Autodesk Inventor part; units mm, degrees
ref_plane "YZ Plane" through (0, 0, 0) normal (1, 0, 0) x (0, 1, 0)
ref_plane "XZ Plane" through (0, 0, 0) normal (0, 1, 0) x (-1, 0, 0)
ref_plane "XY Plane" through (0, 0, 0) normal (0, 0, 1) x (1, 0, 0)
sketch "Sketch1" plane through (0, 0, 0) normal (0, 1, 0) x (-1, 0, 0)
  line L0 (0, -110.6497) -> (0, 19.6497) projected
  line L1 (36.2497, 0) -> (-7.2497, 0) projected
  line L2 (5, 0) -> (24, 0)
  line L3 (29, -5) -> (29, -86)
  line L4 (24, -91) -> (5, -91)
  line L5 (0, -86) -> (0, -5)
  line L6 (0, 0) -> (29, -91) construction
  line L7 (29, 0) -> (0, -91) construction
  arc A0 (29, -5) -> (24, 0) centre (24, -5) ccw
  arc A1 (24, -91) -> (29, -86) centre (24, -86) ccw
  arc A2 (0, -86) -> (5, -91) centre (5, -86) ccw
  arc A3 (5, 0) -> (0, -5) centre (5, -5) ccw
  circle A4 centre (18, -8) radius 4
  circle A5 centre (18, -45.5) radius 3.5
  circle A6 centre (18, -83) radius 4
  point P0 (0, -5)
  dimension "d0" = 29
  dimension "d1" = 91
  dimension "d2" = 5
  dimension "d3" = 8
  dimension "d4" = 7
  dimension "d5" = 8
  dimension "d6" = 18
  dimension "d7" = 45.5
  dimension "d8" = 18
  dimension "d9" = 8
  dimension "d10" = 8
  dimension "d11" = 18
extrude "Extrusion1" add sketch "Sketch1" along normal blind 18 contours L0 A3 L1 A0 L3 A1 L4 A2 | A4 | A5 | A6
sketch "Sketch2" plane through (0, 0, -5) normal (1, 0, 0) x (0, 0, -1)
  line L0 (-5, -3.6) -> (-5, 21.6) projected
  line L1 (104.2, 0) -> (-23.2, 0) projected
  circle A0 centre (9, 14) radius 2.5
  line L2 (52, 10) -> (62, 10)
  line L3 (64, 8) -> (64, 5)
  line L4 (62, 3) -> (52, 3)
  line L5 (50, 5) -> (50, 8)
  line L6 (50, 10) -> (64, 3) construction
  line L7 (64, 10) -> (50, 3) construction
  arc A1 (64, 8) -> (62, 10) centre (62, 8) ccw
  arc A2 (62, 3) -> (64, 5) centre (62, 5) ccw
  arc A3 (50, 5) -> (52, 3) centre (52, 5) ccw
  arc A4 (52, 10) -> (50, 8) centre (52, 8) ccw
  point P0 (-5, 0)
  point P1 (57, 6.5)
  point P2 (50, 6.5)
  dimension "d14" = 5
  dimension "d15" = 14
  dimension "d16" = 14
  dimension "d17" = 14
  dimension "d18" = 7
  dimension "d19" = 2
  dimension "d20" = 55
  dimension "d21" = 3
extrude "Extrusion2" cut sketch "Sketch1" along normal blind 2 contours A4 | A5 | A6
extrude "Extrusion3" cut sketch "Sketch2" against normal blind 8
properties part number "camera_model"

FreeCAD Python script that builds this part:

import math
import FreeCAD as App
import Part
import Sketcher

V = App.Vector
Q = App.Units.Quantity

doc = App.newDocument("Part")
body = doc.addObject("PartDesign::Body", "Body")

sketch1 = doc.addObject("Sketcher::SketchObject", "Sketch")
body.addObject(sketch1)
sketch1.AttachmentSupport = (doc.XZ_Plane, [""])
sketch1.MapMode = "FlatFace"
sketch1.addGeometry(Part.LineSegment(V(0, -5, 0), V(0, -86, 0)), False)
sketch1.addGeometry(Part.ArcOfCircle(Part.Circle(V(-5, -86, 0), V(0, 0, 1), 5), math.radians(-90), math.radians(0)), False)
sketch1.addGeometry(Part.LineSegment(V(-5, -91, 0), V(-24, -91, 0)), False)
sketch1.addGeometry(Part.ArcOfCircle(Part.Circle(V(-24, -86, 0), V(0, 0, 1), 5), math.radians(180), math.radians(270)), False)
sketch1.addGeometry(Part.LineSegment(V(-29, -86, 0), V(-29, -5, 0)), False)
sketch1.addGeometry(Part.ArcOfCircle(Part.Circle(V(-24, -5, 0), V(0, 0, 1), 5), math.radians(90), math.radians(180)), False)
sketch1.addGeometry(Part.LineSegment(V(-24, 0, 0), V(-5, 0, 0)), False)
sketch1.addGeometry(Part.ArcOfCircle(Part.Circle(V(-5, -5, 0), V(0, 0, 1), 5), math.radians(0), math.radians(90)), False)
sketch1.addConstraint(Sketcher.Constraint("Tangent", 0, 2, 1, 2))
sketch1.addConstraint(Sketcher.Constraint("Tangent", 1, 1, 2, 1))
sketch1.addConstraint(Sketcher.Constraint("Tangent", 2, 2, 3, 2))
sketch1.addConstraint(Sketcher.Constraint("Tangent", 3, 1, 4, 1))
sketch1.addConstraint(Sketcher.Constraint("Tangent", 4, 2, 5, 2))
sketch1.addConstraint(Sketcher.Constraint("Tangent", 5, 1, 6, 1))
sketch1.addConstraint(Sketcher.Constraint("Tangent", 6, 2, 7, 2))
sketch1.addConstraint(Sketcher.Constraint("Tangent", 7, 1, 0, 1))
sketch1.addConstraint(Sketcher.Constraint("Vertical", 0))
sketch1.addConstraint(Sketcher.Constraint("Horizontal", 2))
sketch1.addConstraint(Sketcher.Constraint("Vertical", 4))
sketch1.addConstraint(Sketcher.Constraint("Horizontal", 6))
sketch1.addConstraint(Sketcher.Constraint("Equal", 1, 3))
sketch1.addConstraint(Sketcher.Constraint("Equal", 3, 5))
sketch1.addConstraint(Sketcher.Constraint("Equal", 5, 7))
sketch1.addConstraint(Sketcher.Constraint("PointOnObject", 0, 2, -2))
sketch1.addConstraint(Sketcher.Constraint("PointOnObject", 5, 1, -1))
sketch1.addConstraint(Sketcher.Constraint("Radius", 1, Q("5 mm")))
sketch1.addConstraint(Sketcher.Constraint("DistanceY", 1, 1, -1, 1, Q("91 mm")))
sketch1.addConstraint(Sketcher.Constraint("DistanceX", 3, 1, -1, 1, Q("29 mm")))
pad1 = doc.addObject("PartDesign::Pad", "Pad")
body.addObject(pad1)
pad1.Profile = sketch1
pad1.Length = 18
pad1.Reversed = True

sketch2 = doc.addObject("Sketcher::SketchObject", "Sketch001")
body.addObject(sketch2)
sketch2.AttachmentSupport = (doc.XZ_Plane, [""])
sketch2.MapMode = "FlatFace"
sketch2.addGeometry(Part.Circle(V(-18, -8, 0), V(0, 0, 1), 4), False)
sketch2.addGeometry(Part.Circle(V(-18, -45.5, 0), V(0, 0, 1), 3.5), False)
sketch2.addGeometry(Part.Circle(V(-18, -83, 0), V(0, 0, 1), 4), False)
sketch2.addConstraint(Sketcher.Constraint("Equal", 0, 2))
sketch2.addConstraint(Sketcher.Constraint("Vertical", 0, 3, 1, 3))
sketch2.addConstraint(Sketcher.Constraint("Vertical", 1, 3, 2, 3))
sketch2.addConstraint(Sketcher.Constraint("Diameter", 0, Q("8 mm")))
sketch2.addConstraint(Sketcher.Constraint("Diameter", 1, Q("7 mm")))
sketch2.addConstraint(Sketcher.Constraint("DistanceX", 0, 3, -1, 1, Q("18 mm")))
sketch2.addConstraint(Sketcher.Constraint("DistanceY", 0, 3, -1, 1, Q("8 mm")))
sketch2.addConstraint(Sketcher.Constraint("DistanceY", 1, 3, -1, 1, Q("45.5 mm")))
sketch2.addConstraint(Sketcher.Constraint("DistanceY", 2, 3, -1, 1, Q("83 mm")))
pocket1 = doc.addObject("PartDesign::Pocket", "Pocket")
body.addObject(pocket1)
pocket1.Profile = sketch2
pocket1.Length = 2

sketch3 = doc.addObject("Sketcher::SketchObject", "Sketch002")
body.addObject(sketch3)
sketch3.AttachmentSupport = (doc.YZ_Plane, [""])
sketch3.MapMode = "FlatFace"
sketch3.addGeometry(Part.Circle(V(14, -14, 0), V(0, 0, 1), 2.5), False)
sketch3.addGeometry(Part.LineSegment(V(10, -67, 0), V(10, -57, 0)), False)
sketch3.addGeometry(Part.ArcOfCircle(Part.Circle(V(8, -57, 0), V(0, 0, 1), 2), math.radians(0), math.radians(90)), False)
sketch3.addGeometry(Part.LineSegment(V(8, -55, 0), V(5, -55, 0)), False)
sketch3.addGeometry(Part.ArcOfCircle(Part.Circle(V(5, -57, 0), V(0, 0, 1), 2), math.radians(90), math.radians(180)), False)
sketch3.addGeometry(Part.LineSegment(V(3, -57, 0), V(3, -67, 0)), False)
sketch3.addGeometry(Part.ArcOfCircle(Part.Circle(V(5, -67, 0), V(0, 0, 1), 2), math.radians(180), math.radians(270)), False)
sketch3.addGeometry(Part.LineSegment(V(5, -69, 0), V(8, -69, 0)), False)
sketch3.addGeometry(Part.ArcOfCircle(Part.Circle(V(8, -67, 0), V(0, 0, 1), 2), math.radians(-90), math.radians(0)), False)
sketch3.addConstraint(Sketcher.Constraint("Tangent", 1, 2, 2, 1))
sketch3.addConstraint(Sketcher.Constraint("Tangent", 2, 2, 3, 1))
sketch3.addConstraint(Sketcher.Constraint("Tangent", 3, 2, 4, 1))
sketch3.addConstraint(Sketcher.Constraint("Tangent", 4, 2, 5, 1))
sketch3.addConstraint(Sketcher.Constraint("Tangent", 5, 2, 6, 1))
sketch3.addConstraint(Sketcher.Constraint("Tangent", 6, 2, 7, 1))
sketch3.addConstraint(Sketcher.Constraint("Tangent", 7, 2, 8, 1))
sketch3.addConstraint(Sketcher.Constraint("Tangent", 8, 2, 1, 1))
sketch3.addConstraint(Sketcher.Constraint("Vertical", 1))
sketch3.addConstraint(Sketcher.Constraint("Horizontal", 3))
sketch3.addConstraint(Sketcher.Constraint("Vertical", 5))
sketch3.addConstraint(Sketcher.Constraint("Horizontal", 7))
sketch3.addConstraint(Sketcher.Constraint("Equal", 2, 4))
sketch3.addConstraint(Sketcher.Constraint("Equal", 4, 6))
sketch3.addConstraint(Sketcher.Constraint("Equal", 6, 8))
sketch3.addConstraint(Sketcher.Constraint("Diameter", 0, Q("5 mm")))
sketch3.addConstraint(Sketcher.Constraint("Radius", 2, Q("2 mm")))
sketch3.addConstraint(Sketcher.Constraint("DistanceX", 3, 2, 3, 1, Q("3 mm")))
sketch3.addConstraint(Sketcher.Constraint("DistanceX", -1, 1, 0, 3, Q("14 mm")))
sketch3.addConstraint(Sketcher.Constraint("DistanceY", 0, 3, -1, 1, Q("14 mm")))
sketch3.addConstraint(Sketcher.Constraint("DistanceX", -1, 1, 4, 3, Q("5 mm")))
sketch3.addConstraint(Sketcher.Constraint("DistanceY", 2, 2, -1, 1, Q("55 mm")))
sketch3.addConstraint(Sketcher.Constraint("DistanceY", 1, 1, 1, 2, Q("10 mm")))
pocket2 = doc.addObject("PartDesign::Pocket", "Pocket001")
body.addObject(pocket2)
pocket2.Profile = sketch3
pocket2.Length = 8

doc.recompute()
